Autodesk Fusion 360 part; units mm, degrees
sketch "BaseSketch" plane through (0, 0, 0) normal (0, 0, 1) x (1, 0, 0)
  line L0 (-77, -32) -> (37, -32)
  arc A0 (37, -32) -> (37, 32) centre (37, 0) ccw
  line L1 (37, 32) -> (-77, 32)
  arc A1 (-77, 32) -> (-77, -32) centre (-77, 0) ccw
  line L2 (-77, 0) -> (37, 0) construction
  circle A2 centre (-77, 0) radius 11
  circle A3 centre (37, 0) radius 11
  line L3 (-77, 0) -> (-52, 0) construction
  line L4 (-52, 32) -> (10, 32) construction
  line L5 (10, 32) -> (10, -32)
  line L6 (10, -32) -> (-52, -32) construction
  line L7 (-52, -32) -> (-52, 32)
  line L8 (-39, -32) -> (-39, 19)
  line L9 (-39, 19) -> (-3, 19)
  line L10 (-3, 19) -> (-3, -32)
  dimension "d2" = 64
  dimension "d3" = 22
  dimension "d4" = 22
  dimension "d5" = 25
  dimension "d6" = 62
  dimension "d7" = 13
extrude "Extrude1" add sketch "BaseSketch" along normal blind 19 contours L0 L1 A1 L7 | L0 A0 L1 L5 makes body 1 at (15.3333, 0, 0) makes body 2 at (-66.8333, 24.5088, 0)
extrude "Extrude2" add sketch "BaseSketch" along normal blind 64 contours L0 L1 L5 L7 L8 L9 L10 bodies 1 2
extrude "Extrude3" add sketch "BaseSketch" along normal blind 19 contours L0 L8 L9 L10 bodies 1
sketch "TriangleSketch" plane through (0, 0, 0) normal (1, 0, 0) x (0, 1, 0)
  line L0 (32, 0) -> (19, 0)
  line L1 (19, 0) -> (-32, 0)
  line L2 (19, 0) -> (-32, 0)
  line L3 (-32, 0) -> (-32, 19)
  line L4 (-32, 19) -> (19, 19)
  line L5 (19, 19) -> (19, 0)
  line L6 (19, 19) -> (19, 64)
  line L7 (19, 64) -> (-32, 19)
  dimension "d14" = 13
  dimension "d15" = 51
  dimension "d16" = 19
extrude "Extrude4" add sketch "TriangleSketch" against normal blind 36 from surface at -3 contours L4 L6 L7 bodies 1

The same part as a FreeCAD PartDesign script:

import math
import FreeCAD as App
import Part
import Sketcher
from FreeCAD import Vector

doc = App.newDocument("Part")
body = doc.addObject("PartDesign::Body", "Body")
body.AllowCompound = True

# Sketch on XY plane
sketch1 = doc.addObject("Sketcher::SketchObject", "Sketch")
body.addObject(sketch1)
sketch1.AttachmentSupport = (doc.XY_Plane, [""])
sketch1.MapMode = "FlatFace"
sketch1.addGeometry([
    Part.ArcOfCircle(Part.Circle(Vector(-77, 0, 0), Vector(0, 0, 1), 32), math.radians(90), math.radians(270)),  # 0
    Part.LineSegment(Vector(-77, -32, 0), Vector(-52, -32, 0)),  # 1
    Part.LineSegment(Vector(-52, -32, 0), Vector(-52, 32, 0)),  # 2
    Part.LineSegment(Vector(-52, 32, 0), Vector(-77, 32, 0)),  # 3
    Part.Circle(Vector(-77, 0, 0), Vector(0, 0, 1), 11),  # 4
    Part.LineSegment(Vector(37, 32, 0), Vector(10, 32, 0)),  # 5
    Part.LineSegment(Vector(10, 32, 0), Vector(10, -32, 0)),  # 6
    Part.LineSegment(Vector(10, -32, 0), Vector(37, -32, 0)),  # 7
    Part.ArcOfCircle(Part.Circle(Vector(37, 0, 0), Vector(0, 0, 1), 32), math.radians(-90), math.radians(90)),  # 8
    Part.Circle(Vector(37, 0, 0), Vector(0, 0, 1), 11),  # 9
], False)
sketch1.addConstraint([
    Sketcher.Constraint("Tangent", 0, 2, 1, 1),
    Sketcher.Constraint("Coincident", 1, 2, 2, 1),
    Sketcher.Constraint("Coincident", 2, 2, 3, 1),
    Sketcher.Constraint("Tangent", 3, 2, 0, 1),
    Sketcher.Constraint("Coincident", 5, 2, 6, 1),
    Sketcher.Constraint("Coincident", 6, 2, 7, 1),
    Sketcher.Constraint("Tangent", 7, 2, 8, 1),
    Sketcher.Constraint("Tangent", 8, 2, 5, 1),
    Sketcher.Constraint("Horizontal", 1),
    Sketcher.Constraint("Vertical", 2),
    Sketcher.Constraint("Horizontal", 3),
    Sketcher.Constraint("Horizontal", 5),
    Sketcher.Constraint("Vertical", 6),
    Sketcher.Constraint("Horizontal", 7),
    Sketcher.Constraint("Coincident", 4, 3, 0, 3),
    Sketcher.Constraint("Coincident", 9, 3, 8, 3),
    Sketcher.Constraint("Equal", 0, 8),
    Sketcher.Constraint("Equal", 4, 9),
    Sketcher.Constraint("PointOnObject", 0, 3, -1),
    Sketcher.Constraint("PointOnObject", 8, 3, -1),
    Sketcher.Constraint("Diameter", 4, 22.0),
    Sketcher.Constraint("Radius", 0, 32.0),
    Sketcher.Constraint("DistanceX", 1, 1, 1, 2, 25.0),
    Sketcher.Constraint("DistanceX", 2, 2, 5, 2, 62.0),
    Sketcher.Constraint("DistanceX", 5, 2, 5, 1, 27.0),
    Sketcher.Constraint("DistanceX", 0, 3, -1, 1, 77.0),
])
pad1 = doc.addObject("PartDesign::Pad", "Pad")
body.addObject(pad1)
pad1.Profile = sketch1
pad1.Length = 19

# Sketch on XY plane
sketch2 = doc.addObject("Sketcher::SketchObject", "Sketch001")
body.addObject(sketch2)
sketch2.AttachmentSupport = (doc.XY_Plane, [""])
sketch2.MapMode = "FlatFace"
sketch2.addGeometry([
    Part.LineSegment(Vector(-52, 32, 0), Vector(-52, -32, 0)),  # 0
    Part.LineSegment(Vector(-52, -32, 0), Vector(-39, -32, 0)),  # 1
    Part.LineSegment(Vector(-39, -32, 0), Vector(-39, 19, 0)),  # 2
    Part.LineSegment(Vector(-39, 19, 0), Vector(-3, 19, 0)),  # 3
    Part.LineSegment(Vector(-3, 19, 0), Vector(-3, -32, 0)),  # 4
    Part.LineSegment(Vector(-3, -32, 0), Vector(10, -32, 0)),  # 5
    Part.LineSegment(Vector(10, -32, 0), Vector(10, 32, 0)),  # 6
    Part.LineSegment(Vector(10, 32, 0), Vector(-52, 32, 0)),  # 7
], False)
sketch2.addConstraint([
    Sketcher.Constraint("Coincident", 0, 2, 1, 1),
    Sketcher.Constraint("Coincident", 1, 2, 2, 1),
    Sketcher.Constraint("Coincident", 2, 2, 3, 1),
    Sketcher.Constraint("Coincident", 3, 2, 4, 1),
    Sketcher.Constraint("Coincident", 4, 2, 5, 1),
    Sketcher.Constraint("Coincident", 5, 2, 6, 1),
    Sketcher.Constraint("Coincident", 6, 2, 7, 1),
    Sketcher.Constraint("Coincident", 7, 2, 0, 1),
    Sketcher.Constraint("Vertical", 0),
    Sketcher.Constraint("Horizontal", 1),
    Sketcher.Constraint("Vertical", 2),
    Sketcher.Constraint("Horizontal", 3),
    Sketcher.Constraint("Vertical", 4),
    Sketcher.Constraint("Horizontal", 5),
    Sketcher.Constraint("Vertical", 6),
    Sketcher.Constraint("Horizontal", 7),
    Sketcher.Constraint("Horizontal", 1, 2, 4, 2),
    Sketcher.Constraint("Equal", 1, 5),
    Sketcher.Constraint("DistanceX", 1, 1, 1, 2, 13.0),
    Sketcher.Constraint("DistanceX", 7, 2, 7, 1, 62.0),
    Sketcher.Constraint("DistanceY", 0, 2, 0, 1, 64.0),
    Sketcher.Constraint("DistanceY", 3, 2, 6, 2, 13.0),
    Sketcher.Constraint("DistanceX", 0, 2, -1, 1, 52.0),
    Sketcher.Constraint("DistanceY", 0, 2, -1, 1, 32.0),
])
pad2 = doc.addObject("PartDesign::Pad", "Pad001")
body.addObject(pad2)
pad2.Profile = sketch2
pad2.Length = 64

# Sketch on XY plane
sketch3 = doc.addObject("Sketcher::SketchObject", "Sketch002")
body.addObject(sketch3)
sketch3.AttachmentSupport = (doc.XY_Plane, [""])
sketch3.MapMode = "FlatFace"
sketch3.addGeometry([
    Part.LineSegment(Vector(-39, 19, 0), Vector(-39, -32, 0)),
    Part.LineSegment(Vector(-39, -32, 0), Vector(-3, -32, 0)),
    Part.LineSegment(Vector(-3, -32, 0), Vector(-3, 19, 0)),
    Part.LineSegment(Vector(-3, 19, 0), Vector(-39, 19, 0)),
], False)
sketch3.addConstraint([
    Sketcher.Constraint("Coincident", 0, 2, 1, 1),
    Sketcher.Constraint("Coincident", 1, 2, 2, 1),
    Sketcher.Constraint("Coincident", 2, 2, 3, 1),
    Sketcher.Constraint("Coincident", 3, 2, 0, 1),
    Sketcher.Constraint("Vertical", 0),
    Sketcher.Constraint("Horizontal", 1),
    Sketcher.Constraint("Vertical", 2),
    Sketcher.Constraint("Horizontal", 3),
    Sketcher.Constraint("DistanceX", 1, 1, 1, 2, 36.0),
    Sketcher.Constraint("DistanceY", 0, 2, 0, 1, 51.0),
    Sketcher.Constraint("DistanceX", 0, 2, -1, 1, 39.0),
    Sketcher.Constraint("DistanceY", 0, 2, -1, 1, 32.0),
])
pad3 = doc.addObject("PartDesign::Pad", "Pad002")
body.addObject(pad3)
pad3.Profile = sketch3
pad3.Length = 19

# Sketch on YZ plane
sketch4 = doc.addObject("Sketcher::SketchObject", "Sketch003")
body.addObject(sketch4)
sketch4.AttachmentSupport = (doc.YZ_Plane, [""])
sketch4.MapMode = "FlatFace"
sketch4.AttachmentOffset = App.Placement(Vector(0, 0, -3), App.Rotation())
sketch4.addGeometry([
    Part.LineSegment(Vector(-32, 19, 0), Vector(19, 19, 0)),
    Part.LineSegment(Vector(19, 19, 0), Vector(19, 64, 0)),
    Part.LineSegment(Vector(19, 64, 0), Vector(-32, 19, 0)),
], False)
sketch4.addConstraint([
    Sketcher.Constraint("Coincident", 0, 2, 1, 1),
    Sketcher.Constraint("Coincident", 1, 2, 2, 1),
    Sketcher.Constraint("Coincident", 2, 2, 0, 1),
    Sketcher.Constraint("Horizontal", 0),
    Sketcher.Constraint("Vertical", 1),
    Sketcher.Constraint("DistanceX", 0, 1, 0, 2, 51.0),
    Sketcher.Constraint("DistanceX", -1, 1, 0, 2, 19.0),
    Sketcher.Constraint("DistanceY", -1, 1, 0, 2, 19.0),
    Sketcher.Constraint("DistanceY", 1, 1, 1, 2, 45.0),
])
pad4 = doc.addObject("PartDesign::Pad", "Pad003")
body.addObject(pad4)
pad4.Profile = sketch4
pad4.Length = 36
pad4.Reversed = True

doc.recompute()
